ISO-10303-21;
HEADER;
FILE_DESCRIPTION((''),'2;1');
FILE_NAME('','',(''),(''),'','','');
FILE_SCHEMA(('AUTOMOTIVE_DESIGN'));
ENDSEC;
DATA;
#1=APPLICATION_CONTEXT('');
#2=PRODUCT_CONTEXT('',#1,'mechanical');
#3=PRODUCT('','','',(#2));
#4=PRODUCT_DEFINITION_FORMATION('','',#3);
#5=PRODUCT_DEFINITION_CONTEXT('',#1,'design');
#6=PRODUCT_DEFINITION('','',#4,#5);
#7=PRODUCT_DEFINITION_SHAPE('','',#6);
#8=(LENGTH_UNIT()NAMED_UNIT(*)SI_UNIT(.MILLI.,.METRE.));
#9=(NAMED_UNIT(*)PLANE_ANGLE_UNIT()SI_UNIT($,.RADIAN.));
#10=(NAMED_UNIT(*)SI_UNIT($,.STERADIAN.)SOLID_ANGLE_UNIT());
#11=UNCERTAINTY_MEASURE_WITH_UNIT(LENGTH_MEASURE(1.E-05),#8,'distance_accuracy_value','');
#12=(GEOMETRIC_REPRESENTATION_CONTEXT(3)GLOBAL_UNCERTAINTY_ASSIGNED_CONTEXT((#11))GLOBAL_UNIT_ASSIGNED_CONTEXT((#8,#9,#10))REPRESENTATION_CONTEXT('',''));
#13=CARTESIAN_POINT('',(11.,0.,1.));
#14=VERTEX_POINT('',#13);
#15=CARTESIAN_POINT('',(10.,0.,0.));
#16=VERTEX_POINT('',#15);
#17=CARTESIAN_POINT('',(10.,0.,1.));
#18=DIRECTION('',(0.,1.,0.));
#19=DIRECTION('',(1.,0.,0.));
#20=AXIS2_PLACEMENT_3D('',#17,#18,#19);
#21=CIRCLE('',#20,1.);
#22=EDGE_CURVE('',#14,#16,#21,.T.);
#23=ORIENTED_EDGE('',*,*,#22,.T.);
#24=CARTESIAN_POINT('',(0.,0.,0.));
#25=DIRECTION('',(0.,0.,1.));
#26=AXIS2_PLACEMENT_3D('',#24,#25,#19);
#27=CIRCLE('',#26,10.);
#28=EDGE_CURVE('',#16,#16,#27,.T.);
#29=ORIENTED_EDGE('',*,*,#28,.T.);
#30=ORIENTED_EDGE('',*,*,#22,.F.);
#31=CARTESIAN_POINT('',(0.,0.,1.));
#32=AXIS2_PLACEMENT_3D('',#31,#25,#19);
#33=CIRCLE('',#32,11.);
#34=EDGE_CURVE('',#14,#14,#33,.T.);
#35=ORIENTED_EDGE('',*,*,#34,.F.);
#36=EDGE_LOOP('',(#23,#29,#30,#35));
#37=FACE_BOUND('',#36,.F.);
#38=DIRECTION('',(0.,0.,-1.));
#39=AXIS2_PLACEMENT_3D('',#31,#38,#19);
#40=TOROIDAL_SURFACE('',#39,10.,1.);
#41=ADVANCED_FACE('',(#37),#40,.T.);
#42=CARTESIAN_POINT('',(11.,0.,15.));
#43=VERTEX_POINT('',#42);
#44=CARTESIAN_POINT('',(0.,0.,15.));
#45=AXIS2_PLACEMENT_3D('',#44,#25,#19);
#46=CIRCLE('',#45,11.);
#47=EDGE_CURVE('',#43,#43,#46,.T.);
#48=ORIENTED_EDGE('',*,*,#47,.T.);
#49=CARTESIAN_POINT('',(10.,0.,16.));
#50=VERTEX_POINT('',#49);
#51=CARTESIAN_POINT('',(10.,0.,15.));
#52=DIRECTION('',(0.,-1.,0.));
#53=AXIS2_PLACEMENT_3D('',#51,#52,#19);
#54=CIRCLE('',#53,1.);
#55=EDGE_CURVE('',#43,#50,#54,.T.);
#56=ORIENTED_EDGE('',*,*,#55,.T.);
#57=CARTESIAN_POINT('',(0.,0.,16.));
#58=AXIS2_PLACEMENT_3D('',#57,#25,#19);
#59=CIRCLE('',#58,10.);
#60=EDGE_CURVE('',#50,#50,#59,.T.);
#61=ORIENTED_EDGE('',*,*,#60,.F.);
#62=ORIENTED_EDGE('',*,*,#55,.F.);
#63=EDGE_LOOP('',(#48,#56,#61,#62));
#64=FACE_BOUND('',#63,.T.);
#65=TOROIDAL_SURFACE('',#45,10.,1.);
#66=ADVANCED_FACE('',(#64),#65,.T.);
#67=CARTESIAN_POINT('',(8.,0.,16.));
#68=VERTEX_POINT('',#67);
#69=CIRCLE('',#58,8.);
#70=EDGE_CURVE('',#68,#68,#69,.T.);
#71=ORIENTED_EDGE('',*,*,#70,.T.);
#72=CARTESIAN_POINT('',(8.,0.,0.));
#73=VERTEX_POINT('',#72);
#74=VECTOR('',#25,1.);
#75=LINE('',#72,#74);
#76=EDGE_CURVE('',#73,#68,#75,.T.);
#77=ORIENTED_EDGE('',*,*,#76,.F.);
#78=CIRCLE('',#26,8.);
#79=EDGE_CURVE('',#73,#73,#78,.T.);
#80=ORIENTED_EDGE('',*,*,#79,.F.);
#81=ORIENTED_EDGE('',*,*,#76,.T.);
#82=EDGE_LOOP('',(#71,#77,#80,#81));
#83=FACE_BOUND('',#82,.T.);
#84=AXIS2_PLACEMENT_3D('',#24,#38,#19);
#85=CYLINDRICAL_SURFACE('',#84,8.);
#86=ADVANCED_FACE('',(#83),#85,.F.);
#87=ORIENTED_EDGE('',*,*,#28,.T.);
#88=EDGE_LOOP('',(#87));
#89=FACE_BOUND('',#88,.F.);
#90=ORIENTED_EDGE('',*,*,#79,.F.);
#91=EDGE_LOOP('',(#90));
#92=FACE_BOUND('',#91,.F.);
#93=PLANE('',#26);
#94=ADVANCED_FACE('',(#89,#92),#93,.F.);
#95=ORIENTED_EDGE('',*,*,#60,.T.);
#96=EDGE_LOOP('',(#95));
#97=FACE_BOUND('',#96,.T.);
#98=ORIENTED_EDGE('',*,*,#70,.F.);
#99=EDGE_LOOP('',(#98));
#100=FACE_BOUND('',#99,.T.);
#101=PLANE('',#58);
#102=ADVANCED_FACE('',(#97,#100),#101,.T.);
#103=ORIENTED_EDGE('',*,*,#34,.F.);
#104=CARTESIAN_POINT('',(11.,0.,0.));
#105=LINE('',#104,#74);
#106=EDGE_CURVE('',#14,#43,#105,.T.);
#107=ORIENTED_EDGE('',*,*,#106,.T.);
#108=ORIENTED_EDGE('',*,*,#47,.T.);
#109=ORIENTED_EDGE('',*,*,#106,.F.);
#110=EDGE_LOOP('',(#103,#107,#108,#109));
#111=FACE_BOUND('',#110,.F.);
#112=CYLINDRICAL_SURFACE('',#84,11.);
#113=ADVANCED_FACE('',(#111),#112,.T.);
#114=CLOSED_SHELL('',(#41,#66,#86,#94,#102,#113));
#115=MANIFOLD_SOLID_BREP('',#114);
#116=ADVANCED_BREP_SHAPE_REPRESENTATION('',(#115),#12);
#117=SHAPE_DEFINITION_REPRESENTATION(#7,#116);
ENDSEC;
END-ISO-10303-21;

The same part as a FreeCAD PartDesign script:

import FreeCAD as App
import Part
import Sketcher


def edges_at(feature, points):
    """Names of the edges that pass closest to the given points."""
    edges = feature.Shape.Edges
    near = lambda p: min(range(len(edges)), key=lambda i: edges[i].distToShape(Part.Vertex(*p))[0])
    return sorted({f"Edge{near(p) + 1}" for p in points})

doc = App.newDocument("Part")
body = doc.addObject("PartDesign::Body", "Body")

# Sketch on XY plane
sketch1 = body.newObject("Sketcher::SketchObject", "Sketch")
sketch1.AttachmentSupport = (doc.getObject("XY_Plane"), [""])
sketch1.MapMode = "FlatFace"
sketch1.addGeometry(Part.Circle(App.Vector(0, 0, 0), App.Vector(0, 0, 1), 11), False)
sketch1.addGeometry(Part.Circle(App.Vector(0, 0, 0), App.Vector(0, 0, 1), 8), False)
sketch1.addConstraint(Sketcher.Constraint("Coincident", 0, 3, -1, 1))
sketch1.addConstraint(Sketcher.Constraint("Coincident", 1, 3, -1, 1))
sketch1.addConstraint(Sketcher.Constraint("Diameter", 0, 22.0))
sketch1.addConstraint(Sketcher.Constraint("Diameter", 1, 16.0))
pad1 = body.newObject("PartDesign::Pad", "Pad")
pad1.Profile = sketch1
pad1.Length = 16
doc.recompute()

fillet = body.newObject("PartDesign::Fillet", "Fillet")
fillet.Base = (pad1, edges_at(pad1, [(-11, 0, 16), (-11, 0, 0)]))
fillet.Radius = 1

doc.recompute()
